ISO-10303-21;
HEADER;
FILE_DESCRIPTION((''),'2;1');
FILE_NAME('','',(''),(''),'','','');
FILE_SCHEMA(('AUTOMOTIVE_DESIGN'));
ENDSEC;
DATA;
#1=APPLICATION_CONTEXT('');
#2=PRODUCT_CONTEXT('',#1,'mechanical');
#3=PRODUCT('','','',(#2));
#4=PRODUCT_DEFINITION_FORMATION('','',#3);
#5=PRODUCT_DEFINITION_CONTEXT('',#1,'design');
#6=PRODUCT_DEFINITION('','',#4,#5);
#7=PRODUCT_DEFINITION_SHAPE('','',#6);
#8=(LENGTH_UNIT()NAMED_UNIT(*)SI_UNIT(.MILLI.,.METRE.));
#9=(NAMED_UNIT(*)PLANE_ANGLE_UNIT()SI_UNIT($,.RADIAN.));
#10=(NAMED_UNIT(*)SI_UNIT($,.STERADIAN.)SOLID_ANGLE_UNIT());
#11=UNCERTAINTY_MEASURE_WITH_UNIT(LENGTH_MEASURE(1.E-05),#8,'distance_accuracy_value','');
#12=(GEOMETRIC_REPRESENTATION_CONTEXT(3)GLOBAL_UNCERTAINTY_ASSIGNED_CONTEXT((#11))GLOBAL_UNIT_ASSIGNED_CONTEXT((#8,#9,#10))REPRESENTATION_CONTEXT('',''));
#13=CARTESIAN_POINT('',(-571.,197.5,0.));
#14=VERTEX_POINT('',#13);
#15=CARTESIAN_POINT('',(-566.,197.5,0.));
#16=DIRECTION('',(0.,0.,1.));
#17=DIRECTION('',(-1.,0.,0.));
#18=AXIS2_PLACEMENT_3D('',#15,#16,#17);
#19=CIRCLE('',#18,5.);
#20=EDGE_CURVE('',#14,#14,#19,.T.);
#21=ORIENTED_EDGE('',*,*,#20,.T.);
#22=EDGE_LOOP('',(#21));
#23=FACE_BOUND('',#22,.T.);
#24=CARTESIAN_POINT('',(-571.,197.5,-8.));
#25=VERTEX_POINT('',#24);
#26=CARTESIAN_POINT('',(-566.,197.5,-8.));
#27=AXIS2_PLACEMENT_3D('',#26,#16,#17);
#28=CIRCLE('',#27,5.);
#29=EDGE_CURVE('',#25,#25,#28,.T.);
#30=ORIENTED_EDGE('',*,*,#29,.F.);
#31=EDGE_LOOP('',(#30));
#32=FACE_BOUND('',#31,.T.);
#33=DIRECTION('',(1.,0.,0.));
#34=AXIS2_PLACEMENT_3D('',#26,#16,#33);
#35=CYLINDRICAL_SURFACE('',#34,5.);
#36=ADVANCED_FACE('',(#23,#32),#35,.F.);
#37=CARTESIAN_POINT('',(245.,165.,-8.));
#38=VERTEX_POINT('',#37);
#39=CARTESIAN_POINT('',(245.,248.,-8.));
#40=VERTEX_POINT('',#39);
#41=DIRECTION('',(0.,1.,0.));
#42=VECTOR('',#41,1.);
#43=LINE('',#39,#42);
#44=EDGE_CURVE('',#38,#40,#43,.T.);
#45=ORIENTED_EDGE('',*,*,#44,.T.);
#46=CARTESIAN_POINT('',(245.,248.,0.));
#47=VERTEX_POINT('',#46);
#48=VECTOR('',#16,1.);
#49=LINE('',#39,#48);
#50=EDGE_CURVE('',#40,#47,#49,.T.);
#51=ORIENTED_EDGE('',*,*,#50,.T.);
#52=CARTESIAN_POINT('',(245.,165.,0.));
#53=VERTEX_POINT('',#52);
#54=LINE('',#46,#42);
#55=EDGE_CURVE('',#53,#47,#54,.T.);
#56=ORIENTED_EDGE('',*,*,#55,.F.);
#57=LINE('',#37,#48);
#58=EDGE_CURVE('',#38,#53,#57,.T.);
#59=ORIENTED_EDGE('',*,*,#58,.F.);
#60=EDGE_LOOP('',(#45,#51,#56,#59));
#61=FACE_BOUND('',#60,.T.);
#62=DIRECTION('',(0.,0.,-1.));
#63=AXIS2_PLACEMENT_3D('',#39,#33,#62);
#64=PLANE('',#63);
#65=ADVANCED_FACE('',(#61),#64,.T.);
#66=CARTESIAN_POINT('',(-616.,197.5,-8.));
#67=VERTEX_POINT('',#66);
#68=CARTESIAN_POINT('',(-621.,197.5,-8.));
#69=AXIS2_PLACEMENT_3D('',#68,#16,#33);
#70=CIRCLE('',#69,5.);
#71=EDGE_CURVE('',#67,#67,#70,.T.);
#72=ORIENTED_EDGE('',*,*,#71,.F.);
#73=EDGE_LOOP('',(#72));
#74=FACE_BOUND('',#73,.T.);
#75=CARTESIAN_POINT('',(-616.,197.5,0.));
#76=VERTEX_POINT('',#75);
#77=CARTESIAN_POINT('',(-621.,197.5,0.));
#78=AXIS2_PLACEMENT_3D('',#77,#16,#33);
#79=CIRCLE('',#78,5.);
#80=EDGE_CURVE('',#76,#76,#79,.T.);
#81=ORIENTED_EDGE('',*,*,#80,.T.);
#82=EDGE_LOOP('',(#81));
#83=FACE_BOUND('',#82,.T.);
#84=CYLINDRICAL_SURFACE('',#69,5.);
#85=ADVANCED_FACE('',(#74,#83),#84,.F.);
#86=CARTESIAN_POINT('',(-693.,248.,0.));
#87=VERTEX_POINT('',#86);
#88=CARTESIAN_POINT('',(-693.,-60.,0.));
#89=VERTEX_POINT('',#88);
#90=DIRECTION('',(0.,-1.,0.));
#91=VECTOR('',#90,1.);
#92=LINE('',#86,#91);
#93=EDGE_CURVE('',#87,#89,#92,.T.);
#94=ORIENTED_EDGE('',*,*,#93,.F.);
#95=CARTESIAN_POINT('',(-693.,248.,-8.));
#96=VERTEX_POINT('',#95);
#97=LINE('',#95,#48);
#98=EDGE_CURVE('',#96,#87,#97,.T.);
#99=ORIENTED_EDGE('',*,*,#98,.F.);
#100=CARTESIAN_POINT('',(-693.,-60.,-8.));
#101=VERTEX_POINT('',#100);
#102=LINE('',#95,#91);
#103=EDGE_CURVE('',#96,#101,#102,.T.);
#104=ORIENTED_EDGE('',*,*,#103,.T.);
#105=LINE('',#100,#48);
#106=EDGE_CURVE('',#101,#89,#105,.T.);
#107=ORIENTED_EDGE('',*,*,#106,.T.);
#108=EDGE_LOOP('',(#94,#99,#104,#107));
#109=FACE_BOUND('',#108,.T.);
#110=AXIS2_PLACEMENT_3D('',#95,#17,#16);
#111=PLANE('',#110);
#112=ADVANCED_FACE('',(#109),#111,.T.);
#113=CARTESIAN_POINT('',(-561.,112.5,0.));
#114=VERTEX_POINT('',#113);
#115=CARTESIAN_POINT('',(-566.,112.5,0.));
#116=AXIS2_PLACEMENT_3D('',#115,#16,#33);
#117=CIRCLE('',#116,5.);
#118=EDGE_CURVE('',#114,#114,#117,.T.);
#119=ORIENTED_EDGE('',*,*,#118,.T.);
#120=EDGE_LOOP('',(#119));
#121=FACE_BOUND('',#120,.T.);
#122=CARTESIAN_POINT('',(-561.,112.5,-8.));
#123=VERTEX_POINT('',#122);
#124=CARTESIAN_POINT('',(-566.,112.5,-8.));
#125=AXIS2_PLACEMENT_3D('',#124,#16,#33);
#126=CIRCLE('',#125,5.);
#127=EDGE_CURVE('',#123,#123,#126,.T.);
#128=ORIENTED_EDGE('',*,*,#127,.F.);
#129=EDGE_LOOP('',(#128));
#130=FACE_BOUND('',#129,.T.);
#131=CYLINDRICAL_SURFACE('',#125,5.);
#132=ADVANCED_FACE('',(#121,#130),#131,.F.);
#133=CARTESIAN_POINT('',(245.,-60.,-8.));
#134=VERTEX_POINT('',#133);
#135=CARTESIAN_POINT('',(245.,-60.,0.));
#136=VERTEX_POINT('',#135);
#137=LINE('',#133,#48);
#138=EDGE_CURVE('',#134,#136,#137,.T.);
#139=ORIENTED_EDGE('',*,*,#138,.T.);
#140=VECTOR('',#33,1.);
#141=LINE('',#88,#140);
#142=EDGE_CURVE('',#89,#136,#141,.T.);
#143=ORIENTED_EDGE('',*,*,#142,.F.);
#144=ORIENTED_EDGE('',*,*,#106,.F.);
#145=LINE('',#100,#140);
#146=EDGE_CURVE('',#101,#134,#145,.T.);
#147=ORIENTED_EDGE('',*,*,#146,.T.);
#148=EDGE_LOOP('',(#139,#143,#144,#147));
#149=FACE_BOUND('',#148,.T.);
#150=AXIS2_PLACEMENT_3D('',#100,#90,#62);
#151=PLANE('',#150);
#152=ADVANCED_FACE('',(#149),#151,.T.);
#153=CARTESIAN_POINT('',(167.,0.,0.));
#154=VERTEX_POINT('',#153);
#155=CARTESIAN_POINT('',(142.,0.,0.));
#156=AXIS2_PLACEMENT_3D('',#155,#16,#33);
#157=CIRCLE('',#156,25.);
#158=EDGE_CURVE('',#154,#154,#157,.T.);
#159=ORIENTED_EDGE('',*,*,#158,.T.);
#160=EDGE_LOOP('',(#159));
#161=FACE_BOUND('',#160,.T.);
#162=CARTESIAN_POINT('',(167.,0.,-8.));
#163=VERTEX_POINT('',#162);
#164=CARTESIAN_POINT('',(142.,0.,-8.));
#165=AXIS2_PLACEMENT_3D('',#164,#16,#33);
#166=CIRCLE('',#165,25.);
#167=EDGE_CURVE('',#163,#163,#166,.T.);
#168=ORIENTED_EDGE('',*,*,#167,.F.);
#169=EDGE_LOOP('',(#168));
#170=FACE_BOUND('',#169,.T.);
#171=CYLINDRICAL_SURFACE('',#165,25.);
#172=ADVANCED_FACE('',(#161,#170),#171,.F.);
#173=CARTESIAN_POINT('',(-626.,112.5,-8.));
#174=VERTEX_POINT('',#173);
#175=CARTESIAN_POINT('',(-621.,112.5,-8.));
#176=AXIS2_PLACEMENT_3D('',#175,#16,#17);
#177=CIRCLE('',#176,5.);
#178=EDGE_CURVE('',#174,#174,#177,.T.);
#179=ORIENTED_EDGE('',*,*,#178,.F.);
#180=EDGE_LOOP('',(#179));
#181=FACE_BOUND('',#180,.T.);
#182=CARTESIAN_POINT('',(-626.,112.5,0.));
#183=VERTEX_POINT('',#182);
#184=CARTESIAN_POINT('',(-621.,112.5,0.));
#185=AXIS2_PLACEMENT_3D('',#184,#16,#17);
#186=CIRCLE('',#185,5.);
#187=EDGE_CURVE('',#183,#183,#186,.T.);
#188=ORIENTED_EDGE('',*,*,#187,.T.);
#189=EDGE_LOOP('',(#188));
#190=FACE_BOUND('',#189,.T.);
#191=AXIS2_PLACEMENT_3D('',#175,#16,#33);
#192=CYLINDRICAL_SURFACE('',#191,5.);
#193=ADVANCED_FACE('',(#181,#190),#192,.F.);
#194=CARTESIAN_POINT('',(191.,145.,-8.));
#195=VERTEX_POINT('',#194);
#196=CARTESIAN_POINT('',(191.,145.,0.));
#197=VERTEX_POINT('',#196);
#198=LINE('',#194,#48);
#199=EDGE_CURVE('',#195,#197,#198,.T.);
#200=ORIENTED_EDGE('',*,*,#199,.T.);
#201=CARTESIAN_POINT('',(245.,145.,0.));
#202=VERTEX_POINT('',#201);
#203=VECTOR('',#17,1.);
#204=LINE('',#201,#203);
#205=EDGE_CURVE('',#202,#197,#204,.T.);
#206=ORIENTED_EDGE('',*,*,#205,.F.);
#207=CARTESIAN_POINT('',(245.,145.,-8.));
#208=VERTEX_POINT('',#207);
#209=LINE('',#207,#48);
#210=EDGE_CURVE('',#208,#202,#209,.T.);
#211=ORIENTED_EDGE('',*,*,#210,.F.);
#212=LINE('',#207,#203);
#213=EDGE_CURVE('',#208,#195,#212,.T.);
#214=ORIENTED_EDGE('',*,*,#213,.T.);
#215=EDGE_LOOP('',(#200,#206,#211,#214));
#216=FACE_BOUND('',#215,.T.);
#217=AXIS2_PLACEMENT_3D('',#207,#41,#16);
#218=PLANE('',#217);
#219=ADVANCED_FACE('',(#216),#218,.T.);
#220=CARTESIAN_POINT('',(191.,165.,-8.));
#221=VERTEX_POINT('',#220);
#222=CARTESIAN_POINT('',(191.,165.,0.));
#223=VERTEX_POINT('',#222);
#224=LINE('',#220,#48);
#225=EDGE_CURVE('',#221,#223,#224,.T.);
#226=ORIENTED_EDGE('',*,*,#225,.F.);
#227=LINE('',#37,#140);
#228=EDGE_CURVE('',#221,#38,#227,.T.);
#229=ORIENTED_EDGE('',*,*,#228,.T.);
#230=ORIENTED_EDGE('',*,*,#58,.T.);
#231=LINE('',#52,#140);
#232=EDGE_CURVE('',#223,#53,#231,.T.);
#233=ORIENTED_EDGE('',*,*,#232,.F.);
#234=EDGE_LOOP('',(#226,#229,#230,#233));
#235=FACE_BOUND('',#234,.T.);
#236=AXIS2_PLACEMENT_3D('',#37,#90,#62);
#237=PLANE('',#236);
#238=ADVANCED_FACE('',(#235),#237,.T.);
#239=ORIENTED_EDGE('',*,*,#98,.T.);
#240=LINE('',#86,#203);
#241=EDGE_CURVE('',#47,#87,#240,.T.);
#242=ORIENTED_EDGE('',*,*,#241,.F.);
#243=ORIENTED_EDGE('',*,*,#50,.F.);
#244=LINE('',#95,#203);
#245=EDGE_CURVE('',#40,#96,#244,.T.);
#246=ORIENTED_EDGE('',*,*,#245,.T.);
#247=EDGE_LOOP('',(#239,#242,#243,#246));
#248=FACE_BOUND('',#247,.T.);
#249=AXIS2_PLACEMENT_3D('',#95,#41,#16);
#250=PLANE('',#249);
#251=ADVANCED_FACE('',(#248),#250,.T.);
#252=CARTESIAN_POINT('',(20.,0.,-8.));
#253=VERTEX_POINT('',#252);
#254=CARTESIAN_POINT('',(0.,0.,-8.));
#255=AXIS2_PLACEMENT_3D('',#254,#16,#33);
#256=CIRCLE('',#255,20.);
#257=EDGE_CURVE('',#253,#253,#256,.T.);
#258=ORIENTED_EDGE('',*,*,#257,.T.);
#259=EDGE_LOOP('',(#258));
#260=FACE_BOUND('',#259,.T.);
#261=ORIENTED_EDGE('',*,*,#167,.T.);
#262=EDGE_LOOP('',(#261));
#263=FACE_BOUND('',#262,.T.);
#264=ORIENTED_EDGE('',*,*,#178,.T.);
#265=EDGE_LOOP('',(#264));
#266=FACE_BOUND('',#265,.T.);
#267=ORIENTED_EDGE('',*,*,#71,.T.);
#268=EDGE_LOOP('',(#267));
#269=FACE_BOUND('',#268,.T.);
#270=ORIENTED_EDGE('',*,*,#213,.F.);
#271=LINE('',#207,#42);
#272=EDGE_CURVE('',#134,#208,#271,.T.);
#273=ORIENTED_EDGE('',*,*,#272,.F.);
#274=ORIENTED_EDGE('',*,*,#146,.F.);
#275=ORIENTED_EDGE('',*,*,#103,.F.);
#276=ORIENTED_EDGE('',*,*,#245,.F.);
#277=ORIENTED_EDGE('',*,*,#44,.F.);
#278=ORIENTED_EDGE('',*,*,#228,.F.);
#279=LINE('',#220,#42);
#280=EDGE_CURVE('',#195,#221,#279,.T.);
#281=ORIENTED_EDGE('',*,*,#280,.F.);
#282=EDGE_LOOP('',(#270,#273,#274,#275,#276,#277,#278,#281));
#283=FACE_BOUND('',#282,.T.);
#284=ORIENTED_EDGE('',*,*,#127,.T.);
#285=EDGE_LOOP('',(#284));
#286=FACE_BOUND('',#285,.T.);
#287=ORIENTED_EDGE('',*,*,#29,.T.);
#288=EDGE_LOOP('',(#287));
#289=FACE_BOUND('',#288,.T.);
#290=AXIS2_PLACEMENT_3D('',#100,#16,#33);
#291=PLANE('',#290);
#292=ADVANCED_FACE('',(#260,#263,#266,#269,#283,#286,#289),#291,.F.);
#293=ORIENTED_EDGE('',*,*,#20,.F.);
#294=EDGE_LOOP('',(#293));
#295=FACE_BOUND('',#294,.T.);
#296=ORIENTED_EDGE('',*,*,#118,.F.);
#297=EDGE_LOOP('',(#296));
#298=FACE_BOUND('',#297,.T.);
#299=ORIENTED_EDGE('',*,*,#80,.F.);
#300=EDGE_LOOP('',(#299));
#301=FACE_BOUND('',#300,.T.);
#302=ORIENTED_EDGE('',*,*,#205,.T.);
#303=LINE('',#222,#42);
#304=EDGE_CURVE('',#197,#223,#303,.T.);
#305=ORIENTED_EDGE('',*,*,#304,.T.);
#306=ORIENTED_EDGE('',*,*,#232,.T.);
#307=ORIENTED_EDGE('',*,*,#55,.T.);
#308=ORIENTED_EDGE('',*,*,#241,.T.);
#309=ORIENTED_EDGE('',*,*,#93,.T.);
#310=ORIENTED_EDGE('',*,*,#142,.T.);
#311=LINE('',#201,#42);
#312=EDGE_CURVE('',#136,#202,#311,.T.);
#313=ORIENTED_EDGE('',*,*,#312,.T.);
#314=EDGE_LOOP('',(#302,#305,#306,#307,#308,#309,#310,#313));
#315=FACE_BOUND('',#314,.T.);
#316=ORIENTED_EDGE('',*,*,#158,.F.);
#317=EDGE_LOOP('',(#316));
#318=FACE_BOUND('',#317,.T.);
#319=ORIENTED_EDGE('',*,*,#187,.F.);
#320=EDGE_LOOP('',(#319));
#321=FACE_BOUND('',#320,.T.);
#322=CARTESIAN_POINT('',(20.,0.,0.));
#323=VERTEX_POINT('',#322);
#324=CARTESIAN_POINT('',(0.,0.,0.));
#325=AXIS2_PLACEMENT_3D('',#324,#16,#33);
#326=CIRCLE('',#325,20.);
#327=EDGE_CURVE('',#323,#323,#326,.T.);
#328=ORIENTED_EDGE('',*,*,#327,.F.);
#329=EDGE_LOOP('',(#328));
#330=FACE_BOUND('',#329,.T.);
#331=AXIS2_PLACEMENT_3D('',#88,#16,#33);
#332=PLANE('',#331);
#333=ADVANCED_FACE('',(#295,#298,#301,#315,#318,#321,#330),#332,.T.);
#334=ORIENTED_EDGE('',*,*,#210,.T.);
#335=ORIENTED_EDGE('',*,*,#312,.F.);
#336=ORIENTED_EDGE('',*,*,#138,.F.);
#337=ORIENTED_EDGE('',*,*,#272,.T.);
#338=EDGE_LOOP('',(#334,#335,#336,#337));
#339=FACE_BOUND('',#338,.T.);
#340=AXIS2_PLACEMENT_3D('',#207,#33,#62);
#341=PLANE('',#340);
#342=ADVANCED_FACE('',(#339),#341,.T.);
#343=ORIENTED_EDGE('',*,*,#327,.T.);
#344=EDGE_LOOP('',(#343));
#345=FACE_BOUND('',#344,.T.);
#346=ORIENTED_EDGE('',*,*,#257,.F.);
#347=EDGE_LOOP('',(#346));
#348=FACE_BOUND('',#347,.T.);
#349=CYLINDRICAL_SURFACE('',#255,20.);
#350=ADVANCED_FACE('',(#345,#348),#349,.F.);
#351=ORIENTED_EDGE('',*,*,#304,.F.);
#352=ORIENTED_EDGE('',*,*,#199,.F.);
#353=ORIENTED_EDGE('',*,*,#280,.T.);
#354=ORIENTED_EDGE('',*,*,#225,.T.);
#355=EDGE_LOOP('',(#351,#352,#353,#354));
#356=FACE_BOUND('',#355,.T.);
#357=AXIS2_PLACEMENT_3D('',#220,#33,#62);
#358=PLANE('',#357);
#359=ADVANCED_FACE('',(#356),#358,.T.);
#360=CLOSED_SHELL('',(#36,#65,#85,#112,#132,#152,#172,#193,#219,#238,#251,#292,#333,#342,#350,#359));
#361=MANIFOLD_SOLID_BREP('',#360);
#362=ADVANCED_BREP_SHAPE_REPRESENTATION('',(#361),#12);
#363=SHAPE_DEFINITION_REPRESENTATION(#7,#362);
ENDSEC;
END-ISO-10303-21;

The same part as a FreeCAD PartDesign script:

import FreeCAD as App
import Part
import Sketcher
from FreeCAD import Vector

doc = App.newDocument("Part")
body = doc.addObject("PartDesign::Body", "Body")

# Sketch on XY plane
sketch1 = body.newObject("Sketcher::SketchObject", "Sketch")
sketch1.AttachmentSupport = (doc.getObject("XY_Plane"), [""])
sketch1.MapMode = "FlatFace"
sketch1.addGeometry([
    Part.LineSegment(Vector(245, 248, 0), Vector(-693, 248, 0)),  # 0
    Part.LineSegment(Vector(-693, 248, 0), Vector(-693, -60, 0)),  # 1
    Part.LineSegment(Vector(-693, -60, 0), Vector(245, -60, 0)),  # 2
    Part.LineSegment(Vector(245, -60, 0), Vector(245, 145, 0)),  # 3
    Part.LineSegment(Vector(245, 145, 0), Vector(191, 145, 0)),  # 4
    Part.LineSegment(Vector(191, 145, 0), Vector(191, 165, 0)),  # 5
    Part.LineSegment(Vector(191, 165, 0), Vector(245, 165, 0)),  # 6
    Part.LineSegment(Vector(245, 165, 0), Vector(245, 248, 0)),  # 7
    Part.Circle(Vector(142, 0, 0), Vector(0, 0, 1), 25),  # 8
    Part.Circle(Vector(0, 0, 0), Vector(0, 0, 1), 20),  # 9
    Part.Circle(Vector(-566, 112, 0), Vector(0, 0, 1), 5),  # 10
    Part.Circle(Vector(-621, 112, 0), Vector(0, 0, 1), 5),  # 11
    Part.Circle(Vector(-566, 198, 0), Vector(0, 0, 1), 5),  # 12
    Part.Circle(Vector(-621, 198, 0), Vector(0, 0, 1), 5),  # 13
], False)
sketch1.addConstraint([
    Sketcher.Constraint("Coincident", 0, 2, 1, 1),
    Sketcher.Constraint("Coincident", 1, 2, 2, 1),
    Sketcher.Constraint("Coincident", 2, 2, 3, 1),
    Sketcher.Constraint("Coincident", 3, 2, 4, 1),
    Sketcher.Constraint("Coincident", 4, 2, 5, 1),
    Sketcher.Constraint("Coincident", 5, 2, 6, 1),
    Sketcher.Constraint("Coincident", 6, 2, 7, 1),
    Sketcher.Constraint("Coincident", 7, 2, 0, 1),
    Sketcher.Constraint("Horizontal", 0),
    Sketcher.Constraint("Vertical", 1),
    Sketcher.Constraint("Horizontal", 2),
    Sketcher.Constraint("Vertical", 3),
    Sketcher.Constraint("Horizontal", 4),
    Sketcher.Constraint("Vertical", 5),
    Sketcher.Constraint("Horizontal", 6),
    Sketcher.Constraint("Vertical", 7),
    Sketcher.Constraint("Coincident", 9, 3, -1, 1),
    Sketcher.Constraint("Equal", 10, 11),
    Sketcher.Constraint("Equal", 11, 12),
    Sketcher.Constraint("Equal", 12, 13),
    Sketcher.Constraint("PointOnObject", 8, 3, -1),
    Sketcher.Constraint("Horizontal", 10, 3, 11, 3),
    Sketcher.Constraint("Horizontal", 12, 3, 13, 3),
    Sketcher.Constraint("Vertical", 10, 3, 12, 3),
    Sketcher.Constraint("Vertical", 11, 3, 13, 3),
    Sketcher.Constraint("Vertical", 3, 2, 6, 2),
    Sketcher.Constraint("Diameter", 8, 50.0),
    Sketcher.Constraint("Diameter", 9, 40.0),
    Sketcher.Constraint("Diameter", 10, 10.0),
    Sketcher.Constraint("DistanceX", 0, 2, 0, 1, 938.0),
    Sketcher.Constraint("DistanceX", 4, 2, 4, 1, 54.0),
    Sketcher.Constraint("DistanceY", 1, 2, 1, 1, 308.0),
    Sketcher.Constraint("DistanceY", 3, 1, 3, 2, 205.0),
    Sketcher.Constraint("DistanceY", 5, 1, 5, 2, 20.0),
    Sketcher.Constraint("DistanceX", -1, 1, 8, 3, 142.0),
    Sketcher.Constraint("DistanceX", 10, 3, -1, 1, 566.0),
    Sketcher.Constraint("DistanceX", 11, 3, -1, 1, 621.0),
    Sketcher.Constraint("DistanceX", 0, 2, -1, 1, 693.0),
    Sketcher.Constraint("DistanceY", -1, 1, 0, 2, 248.0),
    Sketcher.Constraint("DistanceY", 10, 3, 12, 3, 85.0),
    Sketcher.Constraint("DistanceY", -1, 1, 10, 3, 112.5),
])
pad1 = body.newObject("PartDesign::Pad", "Pad")
pad1.Profile = sketch1
pad1.Length = 8
pad1.Reversed = True

doc.recompute()
